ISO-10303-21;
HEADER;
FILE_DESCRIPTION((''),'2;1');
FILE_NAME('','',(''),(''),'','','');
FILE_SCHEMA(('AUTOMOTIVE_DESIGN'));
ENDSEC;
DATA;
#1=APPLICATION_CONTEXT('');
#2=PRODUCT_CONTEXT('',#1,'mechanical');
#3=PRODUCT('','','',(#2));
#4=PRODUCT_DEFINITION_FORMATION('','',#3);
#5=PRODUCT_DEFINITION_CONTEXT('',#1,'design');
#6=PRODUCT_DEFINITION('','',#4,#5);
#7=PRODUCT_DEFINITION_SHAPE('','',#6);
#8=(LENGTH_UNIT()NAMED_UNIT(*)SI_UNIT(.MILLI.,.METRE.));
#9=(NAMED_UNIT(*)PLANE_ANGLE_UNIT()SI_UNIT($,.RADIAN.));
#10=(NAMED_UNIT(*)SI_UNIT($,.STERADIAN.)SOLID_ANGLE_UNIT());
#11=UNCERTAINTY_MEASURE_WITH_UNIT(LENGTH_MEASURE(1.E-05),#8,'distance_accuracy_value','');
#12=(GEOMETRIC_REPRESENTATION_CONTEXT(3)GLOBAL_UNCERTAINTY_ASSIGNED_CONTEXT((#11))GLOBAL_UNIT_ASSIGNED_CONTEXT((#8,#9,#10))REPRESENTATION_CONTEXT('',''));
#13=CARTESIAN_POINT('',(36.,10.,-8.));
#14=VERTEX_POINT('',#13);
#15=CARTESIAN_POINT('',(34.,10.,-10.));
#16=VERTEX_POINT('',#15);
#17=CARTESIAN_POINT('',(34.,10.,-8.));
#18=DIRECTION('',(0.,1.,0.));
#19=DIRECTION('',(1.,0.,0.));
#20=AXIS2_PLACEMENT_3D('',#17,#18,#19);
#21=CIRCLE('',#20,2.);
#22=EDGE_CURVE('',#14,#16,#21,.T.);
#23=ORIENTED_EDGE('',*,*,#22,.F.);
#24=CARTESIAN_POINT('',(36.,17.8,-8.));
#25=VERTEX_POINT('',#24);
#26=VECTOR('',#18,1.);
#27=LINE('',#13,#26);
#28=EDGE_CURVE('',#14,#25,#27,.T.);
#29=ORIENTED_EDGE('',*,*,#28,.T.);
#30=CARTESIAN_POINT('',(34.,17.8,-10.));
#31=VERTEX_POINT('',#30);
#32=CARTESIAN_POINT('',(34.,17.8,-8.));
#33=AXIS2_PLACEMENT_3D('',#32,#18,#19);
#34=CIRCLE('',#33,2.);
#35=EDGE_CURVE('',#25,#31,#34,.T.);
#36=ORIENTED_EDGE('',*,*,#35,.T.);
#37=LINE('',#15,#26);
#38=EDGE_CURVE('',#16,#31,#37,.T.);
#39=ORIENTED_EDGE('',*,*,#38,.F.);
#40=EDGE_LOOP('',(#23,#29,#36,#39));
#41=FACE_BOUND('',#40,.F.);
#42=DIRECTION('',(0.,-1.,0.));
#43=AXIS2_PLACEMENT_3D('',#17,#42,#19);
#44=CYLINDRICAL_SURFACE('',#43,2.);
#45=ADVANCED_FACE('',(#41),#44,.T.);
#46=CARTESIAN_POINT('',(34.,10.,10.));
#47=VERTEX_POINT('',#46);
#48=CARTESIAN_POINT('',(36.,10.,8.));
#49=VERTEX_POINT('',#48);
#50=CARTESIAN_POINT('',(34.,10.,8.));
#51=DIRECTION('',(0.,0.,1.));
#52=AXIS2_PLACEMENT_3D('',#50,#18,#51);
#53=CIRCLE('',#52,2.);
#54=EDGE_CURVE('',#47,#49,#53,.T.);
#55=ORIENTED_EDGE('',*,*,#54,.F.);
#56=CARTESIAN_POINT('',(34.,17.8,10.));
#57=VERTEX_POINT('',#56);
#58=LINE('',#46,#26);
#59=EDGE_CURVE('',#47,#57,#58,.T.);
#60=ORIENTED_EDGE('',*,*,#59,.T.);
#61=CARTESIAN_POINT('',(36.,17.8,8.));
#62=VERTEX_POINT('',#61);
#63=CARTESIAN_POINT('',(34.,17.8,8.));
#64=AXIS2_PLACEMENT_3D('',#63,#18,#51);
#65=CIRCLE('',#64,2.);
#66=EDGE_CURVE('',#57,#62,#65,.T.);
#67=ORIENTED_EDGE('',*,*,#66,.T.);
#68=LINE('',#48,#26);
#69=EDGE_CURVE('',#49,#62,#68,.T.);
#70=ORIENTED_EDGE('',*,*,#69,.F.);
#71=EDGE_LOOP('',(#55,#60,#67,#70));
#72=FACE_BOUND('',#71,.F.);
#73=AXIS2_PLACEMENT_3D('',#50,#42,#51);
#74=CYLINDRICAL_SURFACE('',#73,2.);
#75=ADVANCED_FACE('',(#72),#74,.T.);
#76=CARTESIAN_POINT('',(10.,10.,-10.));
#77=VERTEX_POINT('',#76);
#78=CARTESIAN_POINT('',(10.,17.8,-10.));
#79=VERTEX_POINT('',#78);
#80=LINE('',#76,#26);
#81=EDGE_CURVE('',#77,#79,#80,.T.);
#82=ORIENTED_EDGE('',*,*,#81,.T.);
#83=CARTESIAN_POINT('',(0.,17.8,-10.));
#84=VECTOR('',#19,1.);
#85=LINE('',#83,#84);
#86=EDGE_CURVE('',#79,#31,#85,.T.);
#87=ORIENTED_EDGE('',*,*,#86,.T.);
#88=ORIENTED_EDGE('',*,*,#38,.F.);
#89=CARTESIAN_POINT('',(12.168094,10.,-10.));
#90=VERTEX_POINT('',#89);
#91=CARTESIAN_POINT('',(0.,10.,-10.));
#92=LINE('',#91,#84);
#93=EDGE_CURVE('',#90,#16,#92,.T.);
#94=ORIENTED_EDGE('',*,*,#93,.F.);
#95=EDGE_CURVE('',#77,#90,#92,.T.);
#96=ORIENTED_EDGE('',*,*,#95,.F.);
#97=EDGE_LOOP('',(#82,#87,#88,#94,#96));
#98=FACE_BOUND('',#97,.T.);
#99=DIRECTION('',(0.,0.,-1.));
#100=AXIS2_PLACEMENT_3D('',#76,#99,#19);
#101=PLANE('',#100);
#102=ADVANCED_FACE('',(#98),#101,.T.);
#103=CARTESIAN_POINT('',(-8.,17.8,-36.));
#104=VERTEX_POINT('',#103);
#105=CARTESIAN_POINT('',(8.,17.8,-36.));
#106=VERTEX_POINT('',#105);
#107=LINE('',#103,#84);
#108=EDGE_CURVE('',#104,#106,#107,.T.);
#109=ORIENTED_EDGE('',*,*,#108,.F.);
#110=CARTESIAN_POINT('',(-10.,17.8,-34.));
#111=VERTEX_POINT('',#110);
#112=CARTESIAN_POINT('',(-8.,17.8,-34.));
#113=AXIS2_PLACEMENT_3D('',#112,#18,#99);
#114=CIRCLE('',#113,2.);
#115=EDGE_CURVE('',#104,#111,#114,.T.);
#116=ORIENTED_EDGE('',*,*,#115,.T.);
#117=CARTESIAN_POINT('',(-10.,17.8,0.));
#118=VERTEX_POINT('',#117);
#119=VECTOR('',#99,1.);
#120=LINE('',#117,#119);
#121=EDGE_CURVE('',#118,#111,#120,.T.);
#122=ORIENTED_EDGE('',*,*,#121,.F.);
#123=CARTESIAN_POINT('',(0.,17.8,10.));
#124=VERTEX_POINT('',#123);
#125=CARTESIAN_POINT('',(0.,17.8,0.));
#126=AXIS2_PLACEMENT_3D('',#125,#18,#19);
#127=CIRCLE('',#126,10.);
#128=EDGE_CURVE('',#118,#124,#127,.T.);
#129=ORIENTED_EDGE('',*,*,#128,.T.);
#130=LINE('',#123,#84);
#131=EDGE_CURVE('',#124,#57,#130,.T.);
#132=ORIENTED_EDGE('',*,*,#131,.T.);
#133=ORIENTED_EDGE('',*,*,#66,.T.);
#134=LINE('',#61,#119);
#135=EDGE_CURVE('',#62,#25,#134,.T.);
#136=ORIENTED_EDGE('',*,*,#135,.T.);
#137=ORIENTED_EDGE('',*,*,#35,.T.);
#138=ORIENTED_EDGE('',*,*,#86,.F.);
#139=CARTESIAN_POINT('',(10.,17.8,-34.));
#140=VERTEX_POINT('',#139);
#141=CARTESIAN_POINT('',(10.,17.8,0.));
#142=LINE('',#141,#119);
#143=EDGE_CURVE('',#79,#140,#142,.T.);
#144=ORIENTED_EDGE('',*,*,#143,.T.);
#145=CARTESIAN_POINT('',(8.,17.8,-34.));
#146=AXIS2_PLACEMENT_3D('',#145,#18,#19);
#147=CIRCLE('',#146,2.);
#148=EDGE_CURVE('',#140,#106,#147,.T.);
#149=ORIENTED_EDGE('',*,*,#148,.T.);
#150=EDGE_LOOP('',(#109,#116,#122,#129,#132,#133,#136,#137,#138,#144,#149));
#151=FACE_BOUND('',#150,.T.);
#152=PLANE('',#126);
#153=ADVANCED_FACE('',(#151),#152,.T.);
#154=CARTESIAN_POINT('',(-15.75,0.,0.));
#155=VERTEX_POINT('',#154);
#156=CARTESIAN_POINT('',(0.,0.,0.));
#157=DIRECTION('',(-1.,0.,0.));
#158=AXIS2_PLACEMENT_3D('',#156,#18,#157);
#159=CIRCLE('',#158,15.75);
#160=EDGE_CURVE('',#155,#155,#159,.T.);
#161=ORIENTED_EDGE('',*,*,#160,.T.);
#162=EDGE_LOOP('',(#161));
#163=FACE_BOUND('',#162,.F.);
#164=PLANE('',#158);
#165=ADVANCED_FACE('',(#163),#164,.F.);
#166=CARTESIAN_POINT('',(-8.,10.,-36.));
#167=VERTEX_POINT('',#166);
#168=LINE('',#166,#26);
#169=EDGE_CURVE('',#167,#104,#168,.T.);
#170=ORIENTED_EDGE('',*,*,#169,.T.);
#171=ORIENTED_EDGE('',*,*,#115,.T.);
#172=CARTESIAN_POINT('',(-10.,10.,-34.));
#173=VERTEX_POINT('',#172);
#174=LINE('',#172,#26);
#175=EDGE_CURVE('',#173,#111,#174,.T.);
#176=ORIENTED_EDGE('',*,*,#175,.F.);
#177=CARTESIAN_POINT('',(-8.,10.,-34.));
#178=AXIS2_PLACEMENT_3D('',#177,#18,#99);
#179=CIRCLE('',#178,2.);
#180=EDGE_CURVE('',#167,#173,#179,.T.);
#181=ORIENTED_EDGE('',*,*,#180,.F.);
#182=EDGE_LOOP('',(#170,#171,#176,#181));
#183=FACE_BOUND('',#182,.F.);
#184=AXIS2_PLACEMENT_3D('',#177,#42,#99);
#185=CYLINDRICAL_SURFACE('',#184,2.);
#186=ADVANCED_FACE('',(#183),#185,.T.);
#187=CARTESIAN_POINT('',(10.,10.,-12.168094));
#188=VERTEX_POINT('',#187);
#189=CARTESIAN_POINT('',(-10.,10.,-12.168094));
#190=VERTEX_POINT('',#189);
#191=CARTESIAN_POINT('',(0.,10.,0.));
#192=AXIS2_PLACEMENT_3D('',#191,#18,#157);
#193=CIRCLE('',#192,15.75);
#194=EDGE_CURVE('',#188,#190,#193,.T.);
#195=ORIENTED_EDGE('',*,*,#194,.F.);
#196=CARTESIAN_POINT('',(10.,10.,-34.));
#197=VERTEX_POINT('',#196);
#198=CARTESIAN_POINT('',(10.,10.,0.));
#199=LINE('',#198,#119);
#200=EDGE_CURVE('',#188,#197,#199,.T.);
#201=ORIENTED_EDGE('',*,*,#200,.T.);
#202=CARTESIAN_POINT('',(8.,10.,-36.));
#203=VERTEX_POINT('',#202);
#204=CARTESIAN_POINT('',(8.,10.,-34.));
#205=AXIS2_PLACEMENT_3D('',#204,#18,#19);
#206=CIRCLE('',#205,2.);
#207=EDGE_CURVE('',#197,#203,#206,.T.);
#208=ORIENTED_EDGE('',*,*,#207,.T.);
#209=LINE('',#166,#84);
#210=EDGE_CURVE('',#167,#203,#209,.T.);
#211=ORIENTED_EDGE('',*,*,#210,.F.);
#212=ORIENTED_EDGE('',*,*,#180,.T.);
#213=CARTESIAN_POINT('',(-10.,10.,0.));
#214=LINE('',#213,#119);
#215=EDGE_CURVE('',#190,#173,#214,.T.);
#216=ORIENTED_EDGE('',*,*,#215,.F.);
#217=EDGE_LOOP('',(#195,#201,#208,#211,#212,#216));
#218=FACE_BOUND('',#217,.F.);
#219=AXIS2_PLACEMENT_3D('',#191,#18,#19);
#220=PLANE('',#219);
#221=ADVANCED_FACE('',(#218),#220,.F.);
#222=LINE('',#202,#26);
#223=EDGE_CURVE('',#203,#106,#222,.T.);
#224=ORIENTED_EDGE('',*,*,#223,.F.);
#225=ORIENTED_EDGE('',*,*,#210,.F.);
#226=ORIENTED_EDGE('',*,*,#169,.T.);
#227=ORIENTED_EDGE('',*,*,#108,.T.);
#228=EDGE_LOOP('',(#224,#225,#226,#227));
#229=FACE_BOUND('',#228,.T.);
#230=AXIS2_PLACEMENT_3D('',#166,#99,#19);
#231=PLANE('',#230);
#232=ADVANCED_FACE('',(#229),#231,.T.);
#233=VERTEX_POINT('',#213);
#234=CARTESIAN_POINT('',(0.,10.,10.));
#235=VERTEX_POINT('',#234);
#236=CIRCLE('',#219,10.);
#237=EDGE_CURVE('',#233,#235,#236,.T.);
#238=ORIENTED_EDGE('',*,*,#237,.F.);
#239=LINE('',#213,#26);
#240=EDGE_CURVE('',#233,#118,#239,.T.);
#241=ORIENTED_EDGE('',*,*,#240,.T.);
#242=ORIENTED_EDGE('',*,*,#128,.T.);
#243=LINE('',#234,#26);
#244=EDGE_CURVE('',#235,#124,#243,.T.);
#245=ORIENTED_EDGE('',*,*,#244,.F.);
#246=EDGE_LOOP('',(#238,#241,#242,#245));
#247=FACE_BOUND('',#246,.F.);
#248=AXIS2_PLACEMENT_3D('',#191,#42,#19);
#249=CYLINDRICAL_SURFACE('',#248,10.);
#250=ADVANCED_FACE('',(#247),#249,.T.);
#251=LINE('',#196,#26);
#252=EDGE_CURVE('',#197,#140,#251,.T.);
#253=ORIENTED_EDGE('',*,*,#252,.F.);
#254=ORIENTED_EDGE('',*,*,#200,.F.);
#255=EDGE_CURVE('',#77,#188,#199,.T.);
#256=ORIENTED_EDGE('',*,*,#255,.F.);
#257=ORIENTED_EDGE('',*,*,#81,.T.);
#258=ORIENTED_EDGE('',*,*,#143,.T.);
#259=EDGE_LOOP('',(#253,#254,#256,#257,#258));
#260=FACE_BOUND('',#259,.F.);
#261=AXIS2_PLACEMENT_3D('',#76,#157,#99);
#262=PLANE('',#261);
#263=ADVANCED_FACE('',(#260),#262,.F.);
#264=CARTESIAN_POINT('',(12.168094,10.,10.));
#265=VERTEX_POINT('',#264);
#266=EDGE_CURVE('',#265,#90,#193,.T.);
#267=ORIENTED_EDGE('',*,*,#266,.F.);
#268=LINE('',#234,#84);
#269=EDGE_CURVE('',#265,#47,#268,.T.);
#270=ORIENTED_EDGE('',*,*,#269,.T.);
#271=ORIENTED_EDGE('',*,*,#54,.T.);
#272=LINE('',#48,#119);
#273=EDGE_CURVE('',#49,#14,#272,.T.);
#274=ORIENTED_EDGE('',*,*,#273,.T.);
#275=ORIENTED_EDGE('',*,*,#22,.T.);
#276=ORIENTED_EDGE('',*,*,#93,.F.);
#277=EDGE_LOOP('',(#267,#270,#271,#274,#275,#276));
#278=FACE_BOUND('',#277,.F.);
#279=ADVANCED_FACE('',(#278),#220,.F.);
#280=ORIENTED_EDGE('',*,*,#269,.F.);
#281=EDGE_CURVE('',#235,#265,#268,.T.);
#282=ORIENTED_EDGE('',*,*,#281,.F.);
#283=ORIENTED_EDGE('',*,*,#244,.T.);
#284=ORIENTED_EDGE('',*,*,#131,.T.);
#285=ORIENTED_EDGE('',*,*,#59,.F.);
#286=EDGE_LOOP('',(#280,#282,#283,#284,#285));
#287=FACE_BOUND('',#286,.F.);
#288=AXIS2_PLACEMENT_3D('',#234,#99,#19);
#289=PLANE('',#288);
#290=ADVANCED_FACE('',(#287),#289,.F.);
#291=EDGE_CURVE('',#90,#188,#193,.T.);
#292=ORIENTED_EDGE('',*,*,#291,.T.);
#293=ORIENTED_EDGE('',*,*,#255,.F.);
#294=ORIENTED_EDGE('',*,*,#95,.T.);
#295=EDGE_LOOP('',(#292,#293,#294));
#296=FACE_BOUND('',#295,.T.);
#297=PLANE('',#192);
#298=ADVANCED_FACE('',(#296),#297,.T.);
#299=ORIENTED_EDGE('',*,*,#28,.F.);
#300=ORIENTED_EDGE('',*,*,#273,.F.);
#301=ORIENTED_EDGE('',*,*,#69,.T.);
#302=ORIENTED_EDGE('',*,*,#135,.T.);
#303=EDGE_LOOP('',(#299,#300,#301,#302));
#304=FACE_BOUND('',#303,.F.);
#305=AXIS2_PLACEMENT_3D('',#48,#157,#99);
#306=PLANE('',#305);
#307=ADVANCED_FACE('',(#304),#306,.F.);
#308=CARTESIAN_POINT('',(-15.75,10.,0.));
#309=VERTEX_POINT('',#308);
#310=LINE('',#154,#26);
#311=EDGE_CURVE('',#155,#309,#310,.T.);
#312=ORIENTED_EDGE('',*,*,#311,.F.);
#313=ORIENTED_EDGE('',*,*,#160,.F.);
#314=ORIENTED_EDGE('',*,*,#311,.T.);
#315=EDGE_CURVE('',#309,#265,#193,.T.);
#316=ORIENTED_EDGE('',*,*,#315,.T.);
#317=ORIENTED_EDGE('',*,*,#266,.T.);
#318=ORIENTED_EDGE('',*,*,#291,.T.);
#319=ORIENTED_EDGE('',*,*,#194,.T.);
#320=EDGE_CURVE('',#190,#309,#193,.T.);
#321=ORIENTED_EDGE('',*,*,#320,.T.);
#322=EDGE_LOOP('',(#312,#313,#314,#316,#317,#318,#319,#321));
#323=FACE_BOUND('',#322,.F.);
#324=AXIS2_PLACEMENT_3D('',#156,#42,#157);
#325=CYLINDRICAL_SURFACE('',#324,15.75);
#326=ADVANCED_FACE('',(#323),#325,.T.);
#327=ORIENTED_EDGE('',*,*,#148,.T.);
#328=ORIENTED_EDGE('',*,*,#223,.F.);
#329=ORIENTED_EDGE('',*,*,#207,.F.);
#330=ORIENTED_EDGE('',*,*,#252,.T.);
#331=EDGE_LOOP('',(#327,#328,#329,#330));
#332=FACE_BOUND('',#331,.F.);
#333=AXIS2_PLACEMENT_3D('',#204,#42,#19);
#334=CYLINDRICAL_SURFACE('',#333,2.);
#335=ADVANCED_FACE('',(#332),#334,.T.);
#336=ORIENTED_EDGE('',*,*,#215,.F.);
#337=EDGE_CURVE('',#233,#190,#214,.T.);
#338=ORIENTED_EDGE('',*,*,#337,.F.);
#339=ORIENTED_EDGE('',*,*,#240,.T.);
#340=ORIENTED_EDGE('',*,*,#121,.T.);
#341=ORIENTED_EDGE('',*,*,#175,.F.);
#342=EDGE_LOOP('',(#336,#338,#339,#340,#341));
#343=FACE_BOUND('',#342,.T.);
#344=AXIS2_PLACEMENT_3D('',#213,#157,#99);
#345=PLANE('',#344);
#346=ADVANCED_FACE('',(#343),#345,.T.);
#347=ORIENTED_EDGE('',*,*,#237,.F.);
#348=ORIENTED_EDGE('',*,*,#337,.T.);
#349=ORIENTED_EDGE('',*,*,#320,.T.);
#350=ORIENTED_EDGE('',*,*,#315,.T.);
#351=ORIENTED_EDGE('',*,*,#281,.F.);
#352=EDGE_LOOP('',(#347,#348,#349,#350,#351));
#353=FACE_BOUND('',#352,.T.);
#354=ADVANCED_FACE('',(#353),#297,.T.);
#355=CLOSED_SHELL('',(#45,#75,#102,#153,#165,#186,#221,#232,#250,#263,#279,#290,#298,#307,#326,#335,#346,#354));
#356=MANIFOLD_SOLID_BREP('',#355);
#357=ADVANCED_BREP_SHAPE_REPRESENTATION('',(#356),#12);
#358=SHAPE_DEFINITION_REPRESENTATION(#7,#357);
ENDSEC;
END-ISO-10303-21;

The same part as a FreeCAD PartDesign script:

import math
import FreeCAD as App
import Part
import Sketcher
Q = App.Units.Quantity

doc = App.newDocument("Part")
body = doc.addObject("PartDesign::Body", "Body")

# Sketch on XZ plane
sketch1 = body.newObject("Sketcher::SketchObject", "Sketch")
sketch1.AttachmentSupport = (doc.getObject("XZ_Plane"), [""])
sketch1.MapMode = "FlatFace"
sketch1.addGeometry(Part.Circle(App.Vector(0, 0, 0), App.Vector(0, 0, 1), 16), False)
sketch1.addConstraint([
    Sketcher.Constraint("Coincident", 0, 3, -1, 1),
    Sketcher.Constraint("Diameter", 0, Q("31.5 mm")),
])
pad1 = body.newObject("PartDesign::Pad", "Pad")
pad1.Profile = sketch1
pad1.Length = 10
pad1.Reversed = True

# Sketch on XZ plane
sketch2 = body.newObject("Sketcher::SketchObject", "Sketch001")
sketch2.AttachmentSupport = (doc.getObject("XZ_Plane"), [""])
sketch2.MapMode = "FlatFace"
sketch2.AttachmentOffset = App.Placement(App.Vector(0, 0, -10), App.Rotation())
sketch2.addGeometry([
    Part.ArcOfCircle(Part.Circle(App.Vector(0, 0, 0), App.Vector(0, 0, 1), 10), math.radians(90), math.radians(180)),  # 0
    Part.LineSegment(App.Vector(0, 10, 0), App.Vector(34, 10, 0)),  # 1
    Part.ArcOfCircle(Part.Circle(App.Vector(34, 8, 0), App.Vector(0, 0, 1), 2), math.radians(0), math.radians(90)),  # 2
    Part.LineSegment(App.Vector(36, 8, 0), App.Vector(36, -8, 0)),  # 3
    Part.ArcOfCircle(Part.Circle(App.Vector(34, -8, 0), App.Vector(0, 0, 1), 2), math.radians(-90), math.radians(0)),  # 4
    Part.LineSegment(App.Vector(34, -10, 0), App.Vector(10, -10, 0)),  # 5
    Part.LineSegment(App.Vector(10, -10, 0), App.Vector(10, -34, 0)),  # 6
    Part.ArcOfCircle(Part.Circle(App.Vector(8, -34, 0), App.Vector(0, 0, 1), 2), math.radians(-90), math.radians(0)),  # 7
    Part.LineSegment(App.Vector(8, -36, 0), App.Vector(-8, -36, 0)),  # 8
    Part.ArcOfCircle(Part.Circle(App.Vector(-8, -34, 0), App.Vector(0, 0, 1), 2), math.radians(180), math.radians(270)),  # 9
    Part.LineSegment(App.Vector(-10, -34, 0), App.Vector(-10, 0, 0)),  # 10
], False)
sketch2.addConstraint([
    Sketcher.Constraint("Tangent", 0, 1, 1, 1),
    Sketcher.Constraint("Tangent", 1, 2, 2, 2),
    Sketcher.Constraint("Tangent", 2, 1, 3, 1),
    Sketcher.Constraint("Tangent", 3, 2, 4, 2),
    Sketcher.Constraint("Tangent", 4, 1, 5, 1),
    Sketcher.Constraint("Coincident", 5, 2, 6, 1),
    Sketcher.Constraint("Tangent", 6, 2, 7, 2),
    Sketcher.Constraint("Tangent", 7, 1, 8, 1),
    Sketcher.Constraint("Tangent", 8, 2, 9, 2),
    Sketcher.Constraint("Tangent", 9, 1, 10, 1),
    Sketcher.Constraint("Tangent", 10, 2, 0, 2),
    Sketcher.Constraint("Horizontal", 1),
    Sketcher.Constraint("Vertical", 3),
    Sketcher.Constraint("Horizontal", 5),
    Sketcher.Constraint("Vertical", 6),
    Sketcher.Constraint("Horizontal", 8),
    Sketcher.Constraint("Vertical", 10),
    Sketcher.Constraint("Coincident", 0, 3, -1, 1),
    Sketcher.Constraint("Equal", 2, 4),
    Sketcher.Constraint("Equal", 4, 7),
    Sketcher.Constraint("Equal", 7, 9),
    Sketcher.Constraint("Equal", 8, 3),
    Sketcher.Constraint("Equal", 5, 6),
    Sketcher.Constraint("Radius", 0, Q("10 mm")),
    Sketcher.Constraint("Radius", 2, Q("2 mm")),
    Sketcher.Constraint("DistanceX", -1, 1, 2, 1, Q("36 mm")),
    Sketcher.Constraint("DistanceY", 4, 1, 1, 2, Q("20 mm")),
])
pad2 = body.newObject("PartDesign::Pad", "Pad001")
pad2.Profile = sketch2
pad2.Length = 7.8
pad2.Reversed = True

doc.recompute()
